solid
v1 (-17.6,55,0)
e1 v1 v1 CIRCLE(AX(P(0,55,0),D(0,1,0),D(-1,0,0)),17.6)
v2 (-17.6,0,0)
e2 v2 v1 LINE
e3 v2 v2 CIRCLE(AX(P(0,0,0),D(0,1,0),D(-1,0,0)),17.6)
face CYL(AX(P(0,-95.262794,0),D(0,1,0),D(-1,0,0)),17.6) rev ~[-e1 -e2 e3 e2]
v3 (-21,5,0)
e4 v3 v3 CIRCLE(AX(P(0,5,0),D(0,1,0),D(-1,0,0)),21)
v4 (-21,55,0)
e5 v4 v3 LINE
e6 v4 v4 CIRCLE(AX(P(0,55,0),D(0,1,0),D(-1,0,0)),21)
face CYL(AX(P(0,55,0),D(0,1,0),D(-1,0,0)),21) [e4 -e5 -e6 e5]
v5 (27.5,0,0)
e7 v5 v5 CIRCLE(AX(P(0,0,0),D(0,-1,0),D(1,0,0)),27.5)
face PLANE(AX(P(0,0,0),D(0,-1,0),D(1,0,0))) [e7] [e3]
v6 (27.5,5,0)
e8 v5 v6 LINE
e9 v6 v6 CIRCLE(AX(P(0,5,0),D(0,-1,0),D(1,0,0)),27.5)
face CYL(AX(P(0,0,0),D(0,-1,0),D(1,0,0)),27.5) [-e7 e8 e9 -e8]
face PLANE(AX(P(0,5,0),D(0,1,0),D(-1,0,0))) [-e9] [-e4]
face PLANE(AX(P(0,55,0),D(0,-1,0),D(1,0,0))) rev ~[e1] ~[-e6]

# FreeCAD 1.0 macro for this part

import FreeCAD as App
import Part
import Sketcher
from FreeCAD import Vector

doc = App.newDocument("Part")
body = doc.addObject("PartDesign::Body", "Body")

sketch1 = body.newObject("Sketcher::SketchObject", "Sketch")
sketch1.AttachmentSupport = (doc.getObject("XZ_Plane"), [""])
sketch1.MapMode = "FlatFace"
sketch1.addGeometry(Part.Circle(Vector(0, 0, 0), Vector(0, 0, 1), 28), False)
sketch1.addConstraint([
    Sketcher.Constraint("Coincident", 0, 3, -1, 1),
    Sketcher.Constraint("Diameter", 0, 55.0),
])
pad1 = body.newObject("PartDesign::Pad", "Pad")
pad1.Profile = sketch1
pad1.Length = 55
pad1.Reversed = True

sketch2 = body.newObject("Sketcher::SketchObject", "Sketch001")
sketch2.AttachmentSupport = (doc.getObject("XZ_Plane"), [""])
sketch2.MapMode = "FlatFace"
sketch2.AttachmentOffset = App.Placement(Vector(0, 0, -55), App.Rotation())
sketch2.addGeometry([
    Part.Circle(Vector(0, 0, 0), Vector(0, 0, 1), 28),
    Part.Circle(Vector(0, 0, 0), Vector(0, 0, 1), 21),
], False)
sketch2.addConstraint([
    Sketcher.Constraint("Coincident", 0, 3, -1, 1),
    Sketcher.Constraint("Coincident", 1, 3, -1, 1),
    Sketcher.Constraint("Diameter", 0, 55.0),
    Sketcher.Constraint("Diameter", 1, 42.0),
])
pocket1 = body.newObject("PartDesign::Pocket", "Pocket")
pocket1.Profile = sketch2
pocket1.Length = 50
pocket1.Reversed = True

sketch3 = body.newObject("Sketcher::SketchObject", "Sketch002")
sketch3.AttachmentSupport = (doc.getObject("XZ_Plane"), [""])
sketch3.MapMode = "FlatFace"
sketch3.addGeometry(Part.Circle(Vector(0, 0, 0), Vector(0, 0, 1), 18), False)
sketch3.addConstraint([
    Sketcher.Constraint("Coincident", 0, 3, -1, 1),
    Sketcher.Constraint("Diameter", 0, 35.2),
])
doc.recompute()
hole = body.newObject("PartDesign::Hole", "Hole")
hole.Profile = sketch3
hole.ThreadType = "None"
hole.Diameter = 35.2
hole.DepthType = "ThroughAll"

doc.recompute()
